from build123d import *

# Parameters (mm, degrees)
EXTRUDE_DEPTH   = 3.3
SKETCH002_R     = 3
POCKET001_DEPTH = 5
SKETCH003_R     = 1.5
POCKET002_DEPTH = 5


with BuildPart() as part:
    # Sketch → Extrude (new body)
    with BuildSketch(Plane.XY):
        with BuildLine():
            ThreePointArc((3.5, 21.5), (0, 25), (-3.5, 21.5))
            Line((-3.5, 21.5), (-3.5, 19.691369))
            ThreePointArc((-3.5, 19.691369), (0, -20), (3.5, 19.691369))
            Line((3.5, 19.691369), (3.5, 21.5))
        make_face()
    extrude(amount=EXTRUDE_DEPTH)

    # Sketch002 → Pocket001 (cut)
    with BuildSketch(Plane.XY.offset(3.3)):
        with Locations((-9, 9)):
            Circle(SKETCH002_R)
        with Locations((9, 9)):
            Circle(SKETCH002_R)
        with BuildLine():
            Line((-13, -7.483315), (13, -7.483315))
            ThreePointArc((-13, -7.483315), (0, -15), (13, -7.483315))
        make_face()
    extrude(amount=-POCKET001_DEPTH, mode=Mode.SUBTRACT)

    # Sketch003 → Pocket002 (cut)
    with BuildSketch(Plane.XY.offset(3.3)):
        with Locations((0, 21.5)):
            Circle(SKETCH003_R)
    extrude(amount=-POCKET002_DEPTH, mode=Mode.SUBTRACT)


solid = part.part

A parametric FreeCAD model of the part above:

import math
import FreeCAD as App
import Part
import Sketcher

V = App.Vector

doc = App.newDocument("Part")
params = doc.addObject("Spreadsheet::Sheet", "Params")
for row, (alias, value) in enumerate([
    ("sketch1_radius", "20 mm"),
    ("sketch1_radius2", "3.5 mm"),
    ("pad1_length", "3.3 mm"),
    ("sketch2_diameter", "6 mm"),
    ("sketch2_radius", "15 mm"),
    ("sketch2_width", "26 mm"),
    ("pocket1_length", "5 mm"),
    ("sketch3_diameter", "3 mm"),
    ("pocket2_length", "5 mm"),
], start=1):
    params.set(f"A{row}", alias)
    params.set(f"B{row}", "=" + value)
    params.setAlias(f"B{row}", alias)

body = doc.addObject("PartDesign::Body", "Body")

sketch1 = body.newObject("Sketcher::SketchObject", "Sketch")
sketch1.AttachmentSupport = (doc.getObject("XY_Plane"), [""])
sketch1.MapMode = "FlatFace"
sketch1.addGeometry([
    Part.ArcOfCircle(Part.Circle(V(0, 21.5, 0), V(0, 0, 1), 3.5), math.radians(0), math.radians(180)),
    Part.LineSegment(V(-3.5, 21.5, 0), V(-3.5, 19.691369, 0)),
    Part.ArcOfCircle(Part.Circle(V(0, 0, 0), V(0, 0, 1), 20), math.radians(100.078658), math.radians(439.921342)),
    Part.LineSegment(V(3.5, 19.691369, 0), V(3.5, 21.5, 0)),
], False)
sketch1.addConstraint([
    Sketcher.Constraint("Tangent", 0, 2, 1, 1),
    Sketcher.Constraint("Coincident", 1, 2, 2, 1),
    Sketcher.Constraint("Coincident", 2, 2, 3, 1),
    Sketcher.Constraint("Tangent", 3, 2, 0, 1),
    Sketcher.Constraint("Vertical", 1),
    Sketcher.Constraint("Vertical", 3),
    Sketcher.Constraint("Coincident", 2, 3, -1, 1),
    Sketcher.Constraint("PointOnObject", 0, 3, -2),
    Sketcher.Constraint("Radius", 2, 20.0),
    Sketcher.Constraint("Radius", 0, 3.5),
    Sketcher.Constraint("DistanceY", -1, 1, 0, 3, 21.5),
])
sketch1.setExpression("Constraints[8]", "Params.sketch1_radius")
sketch1.setExpression("Constraints[9]", "Params.sketch1_radius2")
pad1 = body.newObject("PartDesign::Pad", "Pad")
pad1.Profile = sketch1
pad1.setExpression("Length", "Params.pad1_length")

sketch2 = body.newObject("Sketcher::SketchObject", "Sketch001")
sketch2.AttachmentSupport = (doc.getObject("XY_Plane"), [""])
sketch2.MapMode = "FlatFace"
sketch2.AttachmentOffset = App.Placement(V(0, 0, 3.3), App.Rotation())
sketch2.addGeometry([
    Part.Circle(V(-9, 9, 0), V(0, 0, 1), 3),
    Part.Circle(V(9, 9, 0), V(0, 0, 1), 3),
    Part.LineSegment(V(13, -7.483315, 0), V(-13, -7.483315, 0)),
    Part.ArcOfCircle(Part.Circle(V(0, 0, 0), V(0, 0, 1), 15), math.radians(-150.073564), math.radians(-29.926436)),
], False)
sketch2.addConstraint([
    Sketcher.Constraint("Coincident", 2, 1, 3, 2),
    Sketcher.Constraint("Coincident", 3, 1, 2, 2),
    Sketcher.Constraint("Horizontal", 2),
    Sketcher.Constraint("Coincident", 3, 3, -1, 1),
    Sketcher.Constraint("Equal", 0, 1),
    Sketcher.Constraint("Symmetric", 0, 3, 1, 3, -2),
    Sketcher.Constraint("Diameter", 0, 6.0),
    Sketcher.Constraint("Radius", 3, 15.0),
    Sketcher.Constraint("DistanceX", 2, 2, 2, 1, 26.0),
    Sketcher.Constraint("DistanceX", 0, 3, -1, 1, 9.0),
    Sketcher.Constraint("DistanceY", -1, 1, 0, 3, 9.0),
])
sketch2.setExpression("Constraints[6]", "Params.sketch2_diameter")
sketch2.setExpression("Constraints[7]", "Params.sketch2_radius")
sketch2.setExpression("Constraints[8]", "Params.sketch2_width")
pocket1 = body.newObject("PartDesign::Pocket", "Pocket")
pocket1.Profile = sketch2
pocket1.setExpression("Length", "Params.pocket1_length")

sketch3 = body.newObject("Sketcher::SketchObject", "Sketch002")
sketch3.AttachmentSupport = (doc.getObject("XY_Plane"), [""])
sketch3.MapMode = "FlatFace"
sketch3.AttachmentOffset = App.Placement(V(0, 0, 3.3), App.Rotation())
sketch3.addGeometry(Part.Circle(V(0, 21.5, 0), V(0, 0, 1), 1.5), False)
sketch3.addConstraint([
    Sketcher.Constraint("PointOnObject", 0, 3, -2),
    Sketcher.Constraint("Diameter", 0, 3.0),
    Sketcher.Constraint("DistanceY", -1, 1, 0, 3, 21.5),
])
sketch3.setExpression("Constraints[1]", "Params.sketch3_diameter")
pocket2 = body.newObject("PartDesign::Pocket", "Pocket001")
pocket2.Profile = sketch3
pocket2.setExpression("Length", "Params.pocket2_length")

doc.recompute()
